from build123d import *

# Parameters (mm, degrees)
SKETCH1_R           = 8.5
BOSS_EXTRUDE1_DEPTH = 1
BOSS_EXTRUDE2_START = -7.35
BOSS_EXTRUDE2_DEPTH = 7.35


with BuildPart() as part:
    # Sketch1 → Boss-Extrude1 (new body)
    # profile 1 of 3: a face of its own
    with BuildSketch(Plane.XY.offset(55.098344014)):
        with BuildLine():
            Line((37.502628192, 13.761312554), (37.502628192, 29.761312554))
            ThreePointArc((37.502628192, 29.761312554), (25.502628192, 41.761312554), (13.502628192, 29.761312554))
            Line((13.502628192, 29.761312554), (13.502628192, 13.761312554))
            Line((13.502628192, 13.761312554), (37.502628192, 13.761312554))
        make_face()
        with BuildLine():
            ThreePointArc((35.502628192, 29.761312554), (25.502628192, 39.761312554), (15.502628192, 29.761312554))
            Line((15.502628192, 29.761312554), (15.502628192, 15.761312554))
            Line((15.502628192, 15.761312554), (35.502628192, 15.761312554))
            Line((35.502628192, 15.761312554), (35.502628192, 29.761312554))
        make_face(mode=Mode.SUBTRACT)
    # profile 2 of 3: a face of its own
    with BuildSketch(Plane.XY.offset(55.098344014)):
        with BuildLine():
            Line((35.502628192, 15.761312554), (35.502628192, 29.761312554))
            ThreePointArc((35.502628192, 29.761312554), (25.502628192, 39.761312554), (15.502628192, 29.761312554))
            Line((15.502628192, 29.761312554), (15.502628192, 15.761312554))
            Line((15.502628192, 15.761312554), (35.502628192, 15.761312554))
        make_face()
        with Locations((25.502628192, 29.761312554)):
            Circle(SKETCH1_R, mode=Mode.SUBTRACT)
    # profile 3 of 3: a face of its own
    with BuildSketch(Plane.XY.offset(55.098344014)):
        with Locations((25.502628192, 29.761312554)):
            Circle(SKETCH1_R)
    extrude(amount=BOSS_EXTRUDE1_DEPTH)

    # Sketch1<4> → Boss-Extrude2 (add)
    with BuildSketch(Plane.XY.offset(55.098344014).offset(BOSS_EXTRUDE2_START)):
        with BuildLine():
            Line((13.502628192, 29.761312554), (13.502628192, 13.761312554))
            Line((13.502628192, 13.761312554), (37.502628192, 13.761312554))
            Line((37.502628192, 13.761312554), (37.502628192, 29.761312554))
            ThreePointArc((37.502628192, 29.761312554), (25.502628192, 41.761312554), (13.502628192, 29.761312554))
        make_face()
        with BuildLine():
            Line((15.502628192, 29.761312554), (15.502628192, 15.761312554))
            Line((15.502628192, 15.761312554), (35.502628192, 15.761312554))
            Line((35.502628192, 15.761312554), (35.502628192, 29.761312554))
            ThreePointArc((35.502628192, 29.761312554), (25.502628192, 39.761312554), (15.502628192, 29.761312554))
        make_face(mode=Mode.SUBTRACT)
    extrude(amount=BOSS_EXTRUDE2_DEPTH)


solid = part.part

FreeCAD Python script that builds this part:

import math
import FreeCAD as App
import Part
import Sketcher

V = App.Vector
Q = App.Units.Quantity

doc = App.newDocument("Part")
params = doc.addObject("Spreadsheet::Sheet", "Params")
for row, (alias, value) in enumerate([
    ("sketch1_radius", "12 mm"),
    ("sketch1_height", "16 mm"),
    ("pad1_length", "1 mm"),
    ("sketch2_radius", "12 mm"),
    ("sketch2_radius2", "10 mm"),
    ("sketch2_height", "16 mm"),
    ("sketch2_height2", "14 mm"),
    ("pad2_length", "7.35 mm"),
], start=1):
    params.set(f"A{row}", alias)
    params.set(f"B{row}", "=" + value)
    params.setAlias(f"B{row}", alias)

body = doc.addObject("PartDesign::Body", "Body")

# Sketch on XY plane
sketch1 = body.newObject("Sketcher::SketchObject", "Sketch")
sketch1.AttachmentSupport = (doc.getObject("XY_Plane"), [""])
sketch1.MapMode = "FlatFace"
sketch1.AttachmentOffset = App.Placement(V(0, 0, 55.098344), App.Rotation())
sketch1.addGeometry(Part.LineSegment(V(38, 14, 0), V(38, 30, 0)), False)
sketch1.addGeometry(Part.ArcOfCircle(Part.Circle(V(26, 30, 0), V(0, 0, 1), 12), math.radians(0), math.radians(180)), False)
sketch1.addGeometry(Part.LineSegment(V(14, 30, 0), V(14, 14, 0)), False)
sketch1.addGeometry(Part.LineSegment(V(14, 14, 0), V(38, 14, 0)), False)
sketch1.addConstraint(Sketcher.Constraint("Tangent", 0, 2, 1, 1))
sketch1.addConstraint(Sketcher.Constraint("Tangent", 1, 2, 2, 1))
sketch1.addConstraint(Sketcher.Constraint("Coincident", 2, 2, 3, 1))
sketch1.addConstraint(Sketcher.Constraint("Coincident", 3, 2, 0, 1))
sketch1.addConstraint(Sketcher.Constraint("Vertical", 0))
sketch1.addConstraint(Sketcher.Constraint("Vertical", 2))
sketch1.addConstraint(Sketcher.Constraint("Horizontal", 3))
sketch1.addConstraint(Sketcher.Constraint("Radius", 1, Q("12 mm")))
sketch1.addConstraint(Sketcher.Constraint("DistanceY", 0, 1, 0, 2, Q("16 mm")))
sketch1.addConstraint(Sketcher.Constraint("DistanceX", -1, 1, 1, 3, Q("25.502628 mm")))
sketch1.addConstraint(Sketcher.Constraint("DistanceY", -1, 1, 1, 3, Q("29.761313 mm")))
sketch1.setExpression("Constraints[7]", "Params.sketch1_radius")
sketch1.setExpression("Constraints[8]", "Params.sketch1_height")
pad1 = body.newObject("PartDesign::Pad", "Pad")
pad1.Profile = sketch1
pad1.setExpression("Length", "Params.pad1_length")

# Sketch on XY plane
sketch2 = body.newObject("Sketcher::SketchObject", "Sketch001")
sketch2.AttachmentSupport = (doc.getObject("XY_Plane"), [""])
sketch2.MapMode = "FlatFace"
sketch2.AttachmentOffset = App.Placement(V(0, 0, 47.748344), App.Rotation())
sketch2.addGeometry(Part.LineSegment(V(14, 30, 0), V(14, 14, 0)), False)
sketch2.addGeometry(Part.LineSegment(V(14, 14, 0), V(38, 14, 0)), False)
sketch2.addGeometry(Part.LineSegment(V(38, 14, 0), V(38, 30, 0)), False)
sketch2.addGeometry(Part.ArcOfCircle(Part.Circle(V(26, 30, 0), V(0, 0, 1), 12), math.radians(0), math.radians(180)), False)
sketch2.addGeometry(Part.LineSegment(V(16, 16, 0), V(16, 30, 0)), False)
sketch2.addGeometry(Part.ArcOfCircle(Part.Circle(V(26, 30, 0), V(0, 0, 1), 10), math.radians(0), math.radians(180)), False)
sketch2.addGeometry(Part.LineSegment(V(36, 30, 0), V(36, 16, 0)), False)
sketch2.addGeometry(Part.LineSegment(V(36, 16, 0), V(16, 16, 0)), False)
sketch2.addConstraint(Sketcher.Constraint("Coincident", 0, 2, 1, 1))
sketch2.addConstraint(Sketcher.Constraint("Coincident", 1, 2, 2, 1))
sketch2.addConstraint(Sketcher.Constraint("Tangent", 2, 2, 3, 1))
sketch2.addConstraint(Sketcher.Constraint("Tangent", 3, 2, 0, 1))
sketch2.addConstraint(Sketcher.Constraint("Tangent", 4, 2, 5, 2))
sketch2.addConstraint(Sketcher.Constraint("Tangent", 5, 1, 6, 1))
sketch2.addConstraint(Sketcher.Constraint("Coincident", 6, 2, 7, 1))
sketch2.addConstraint(Sketcher.Constraint("Coincident", 7, 2, 4, 1))
sketch2.addConstraint(Sketcher.Constraint("Vertical", 0))
sketch2.addConstraint(Sketcher.Constraint("Horizontal", 1))
sketch2.addConstraint(Sketcher.Constraint("Vertical", 2))
sketch2.addConstraint(Sketcher.Constraint("Vertical", 4))
sketch2.addConstraint(Sketcher.Constraint("Vertical", 6))
sketch2.addConstraint(Sketcher.Constraint("Horizontal", 7))
sketch2.addConstraint(Sketcher.Constraint("Coincident", 5, 3, 3, 3))
sketch2.addConstraint(Sketcher.Constraint("Radius", 3, Q("12 mm")))
sketch2.addConstraint(Sketcher.Constraint("Radius", 5, Q("10 mm")))
sketch2.addConstraint(Sketcher.Constraint("DistanceY", 0, 2, 0, 1, Q("16 mm")))
sketch2.addConstraint(Sketcher.Constraint("DistanceY", 4, 1, 4, 2, Q("14 mm")))
sketch2.addConstraint(Sketcher.Constraint("DistanceX", -1, 1, 3, 3, Q("25.502628 mm")))
sketch2.addConstraint(Sketcher.Constraint("DistanceY", -1, 1, 3, 3, Q("29.761313 mm")))
sketch2.setExpression("Constraints[15]", "Params.sketch2_radius")
sketch2.setExpression("Constraints[16]", "Params.sketch2_radius2")
sketch2.setExpression("Constraints[17]", "Params.sketch2_height")
sketch2.setExpression("Constraints[18]", "Params.sketch2_height2")
pad2 = body.newObject("PartDesign::Pad", "Pad001")
pad2.Profile = sketch2
pad2.setExpression("Length", "Params.pad2_length")

doc.recompute()
